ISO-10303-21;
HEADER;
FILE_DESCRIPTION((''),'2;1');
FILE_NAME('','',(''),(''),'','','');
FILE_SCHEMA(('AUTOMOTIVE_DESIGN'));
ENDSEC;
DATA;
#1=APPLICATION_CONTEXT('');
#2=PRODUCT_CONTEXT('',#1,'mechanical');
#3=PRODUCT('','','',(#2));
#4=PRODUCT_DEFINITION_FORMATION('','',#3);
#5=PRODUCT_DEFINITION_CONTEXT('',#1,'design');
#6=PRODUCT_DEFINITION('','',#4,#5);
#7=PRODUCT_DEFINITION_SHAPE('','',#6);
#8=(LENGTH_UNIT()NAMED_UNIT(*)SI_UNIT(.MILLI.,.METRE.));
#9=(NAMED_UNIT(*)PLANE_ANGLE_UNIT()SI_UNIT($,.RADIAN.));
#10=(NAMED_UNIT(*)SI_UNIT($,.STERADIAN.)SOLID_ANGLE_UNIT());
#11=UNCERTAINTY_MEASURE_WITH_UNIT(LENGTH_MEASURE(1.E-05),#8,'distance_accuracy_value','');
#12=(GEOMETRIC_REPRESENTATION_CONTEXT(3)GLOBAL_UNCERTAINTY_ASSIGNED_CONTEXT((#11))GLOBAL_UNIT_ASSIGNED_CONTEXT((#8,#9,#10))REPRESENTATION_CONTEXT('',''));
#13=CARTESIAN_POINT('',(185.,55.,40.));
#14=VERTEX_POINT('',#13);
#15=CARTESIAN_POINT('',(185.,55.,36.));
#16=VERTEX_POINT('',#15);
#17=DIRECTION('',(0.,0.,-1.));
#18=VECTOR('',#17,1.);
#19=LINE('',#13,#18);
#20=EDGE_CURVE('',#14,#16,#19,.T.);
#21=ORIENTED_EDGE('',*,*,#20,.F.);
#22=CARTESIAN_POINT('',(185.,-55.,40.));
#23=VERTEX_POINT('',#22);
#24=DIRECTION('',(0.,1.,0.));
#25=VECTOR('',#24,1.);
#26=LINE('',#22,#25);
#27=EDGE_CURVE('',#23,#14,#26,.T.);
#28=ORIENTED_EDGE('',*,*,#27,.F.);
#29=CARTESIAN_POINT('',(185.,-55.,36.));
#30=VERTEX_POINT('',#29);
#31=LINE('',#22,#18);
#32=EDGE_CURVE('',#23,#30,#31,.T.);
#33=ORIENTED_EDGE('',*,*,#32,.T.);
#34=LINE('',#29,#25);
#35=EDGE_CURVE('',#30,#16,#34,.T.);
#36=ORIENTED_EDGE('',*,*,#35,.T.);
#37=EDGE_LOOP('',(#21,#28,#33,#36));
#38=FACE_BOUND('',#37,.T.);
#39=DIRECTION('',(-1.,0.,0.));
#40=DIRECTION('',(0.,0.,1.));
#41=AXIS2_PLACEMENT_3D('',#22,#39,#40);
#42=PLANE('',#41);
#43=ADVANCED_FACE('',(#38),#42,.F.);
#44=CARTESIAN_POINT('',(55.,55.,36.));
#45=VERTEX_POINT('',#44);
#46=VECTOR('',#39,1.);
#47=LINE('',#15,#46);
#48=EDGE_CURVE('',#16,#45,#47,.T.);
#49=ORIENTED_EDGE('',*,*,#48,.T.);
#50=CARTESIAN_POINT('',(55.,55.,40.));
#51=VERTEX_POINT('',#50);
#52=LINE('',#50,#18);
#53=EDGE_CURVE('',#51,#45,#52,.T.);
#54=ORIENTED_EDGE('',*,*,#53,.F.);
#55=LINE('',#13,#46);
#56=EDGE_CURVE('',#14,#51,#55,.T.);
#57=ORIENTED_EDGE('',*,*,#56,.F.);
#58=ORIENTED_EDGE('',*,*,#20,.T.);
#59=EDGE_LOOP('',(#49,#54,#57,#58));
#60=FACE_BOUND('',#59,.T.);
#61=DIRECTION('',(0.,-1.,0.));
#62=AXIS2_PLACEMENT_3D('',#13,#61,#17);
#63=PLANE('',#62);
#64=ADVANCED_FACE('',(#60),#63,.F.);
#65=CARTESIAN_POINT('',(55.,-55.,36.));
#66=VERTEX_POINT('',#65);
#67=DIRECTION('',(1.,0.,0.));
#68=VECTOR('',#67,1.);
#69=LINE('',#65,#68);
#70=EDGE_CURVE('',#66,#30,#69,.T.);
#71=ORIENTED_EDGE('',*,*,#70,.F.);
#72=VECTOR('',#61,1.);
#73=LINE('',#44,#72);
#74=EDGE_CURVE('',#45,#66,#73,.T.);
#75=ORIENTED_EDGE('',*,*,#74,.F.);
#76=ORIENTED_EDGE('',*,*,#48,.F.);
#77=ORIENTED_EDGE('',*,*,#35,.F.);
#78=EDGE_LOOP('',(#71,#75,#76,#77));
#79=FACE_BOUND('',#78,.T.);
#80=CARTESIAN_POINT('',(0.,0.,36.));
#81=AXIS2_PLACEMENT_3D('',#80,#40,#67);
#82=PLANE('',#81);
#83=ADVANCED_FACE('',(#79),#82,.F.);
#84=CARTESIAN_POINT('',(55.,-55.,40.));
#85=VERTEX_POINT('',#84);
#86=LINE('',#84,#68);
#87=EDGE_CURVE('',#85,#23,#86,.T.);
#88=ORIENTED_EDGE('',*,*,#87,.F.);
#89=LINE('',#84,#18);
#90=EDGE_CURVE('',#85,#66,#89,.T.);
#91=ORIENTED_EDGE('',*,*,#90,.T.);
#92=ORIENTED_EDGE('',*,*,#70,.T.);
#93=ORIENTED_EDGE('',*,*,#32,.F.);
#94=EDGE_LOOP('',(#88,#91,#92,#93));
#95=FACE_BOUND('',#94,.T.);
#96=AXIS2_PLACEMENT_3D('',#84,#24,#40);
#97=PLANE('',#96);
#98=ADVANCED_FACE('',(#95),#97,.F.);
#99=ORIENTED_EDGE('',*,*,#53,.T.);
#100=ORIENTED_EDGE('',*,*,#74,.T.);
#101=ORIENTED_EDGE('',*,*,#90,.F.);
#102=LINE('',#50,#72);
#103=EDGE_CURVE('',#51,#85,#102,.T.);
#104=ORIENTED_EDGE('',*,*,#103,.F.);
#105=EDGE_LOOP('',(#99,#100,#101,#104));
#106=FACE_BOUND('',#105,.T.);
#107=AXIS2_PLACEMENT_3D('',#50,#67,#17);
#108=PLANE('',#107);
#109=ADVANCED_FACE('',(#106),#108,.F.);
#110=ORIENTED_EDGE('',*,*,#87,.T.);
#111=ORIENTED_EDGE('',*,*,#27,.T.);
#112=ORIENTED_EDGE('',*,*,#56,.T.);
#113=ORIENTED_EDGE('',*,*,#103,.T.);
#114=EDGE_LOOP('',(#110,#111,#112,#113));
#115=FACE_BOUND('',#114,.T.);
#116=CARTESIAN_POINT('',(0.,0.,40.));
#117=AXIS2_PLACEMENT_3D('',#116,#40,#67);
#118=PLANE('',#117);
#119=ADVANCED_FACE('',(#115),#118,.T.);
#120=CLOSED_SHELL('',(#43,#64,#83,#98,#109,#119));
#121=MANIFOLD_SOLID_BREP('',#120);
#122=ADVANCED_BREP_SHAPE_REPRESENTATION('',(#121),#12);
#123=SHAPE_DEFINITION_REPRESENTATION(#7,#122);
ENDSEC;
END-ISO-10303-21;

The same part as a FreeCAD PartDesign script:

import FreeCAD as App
import Part
import Sketcher

doc = App.newDocument("Part")
body = doc.addObject("PartDesign::Body", "Body")

# Sketch on XY plane
sketch1 = body.newObject("Sketcher::SketchObject", "Sketch")
sketch1.AttachmentSupport = (doc.getObject("XY_Plane"), [""])
sketch1.MapMode = "FlatFace"
sketch1.AttachmentOffset = App.Placement(App.Vector(0, 0, 36), App.Rotation())
sketch1.addGeometry([
    Part.LineSegment(App.Vector(55, 55, 0), App.Vector(55, -55, 0)),
    Part.LineSegment(App.Vector(55, -55, 0), App.Vector(185, -55, 0)),
    Part.LineSegment(App.Vector(185, -55, 0), App.Vector(185, 55, 0)),
    Part.LineSegment(App.Vector(185, 55, 0), App.Vector(55, 55, 0)),
], False)
sketch1.addConstraint([
    Sketcher.Constraint("Coincident", 0, 2, 1, 1),
    Sketcher.Constraint("Coincident", 1, 2, 2, 1),
    Sketcher.Constraint("Coincident", 2, 2, 3, 1),
    Sketcher.Constraint("Coincident", 3, 2, 0, 1),
    Sketcher.Constraint("Vertical", 0),
    Sketcher.Constraint("Horizontal", 1),
    Sketcher.Constraint("Vertical", 2),
    Sketcher.Constraint("Horizontal", 3),
    Sketcher.Constraint("DistanceX", 1, 1, 1, 2, 130.0),
    Sketcher.Constraint("DistanceY", 0, 2, 0, 1, 110.0),
    Sketcher.Constraint("DistanceX", -1, 1, 0, 2, 55.0),
    Sketcher.Constraint("DistanceY", 0, 2, -1, 1, 55.0),
])
pad1 = body.newObject("PartDesign::Pad", "Pad")
pad1.Profile = sketch1
pad1.Length = 4

doc.recompute()
